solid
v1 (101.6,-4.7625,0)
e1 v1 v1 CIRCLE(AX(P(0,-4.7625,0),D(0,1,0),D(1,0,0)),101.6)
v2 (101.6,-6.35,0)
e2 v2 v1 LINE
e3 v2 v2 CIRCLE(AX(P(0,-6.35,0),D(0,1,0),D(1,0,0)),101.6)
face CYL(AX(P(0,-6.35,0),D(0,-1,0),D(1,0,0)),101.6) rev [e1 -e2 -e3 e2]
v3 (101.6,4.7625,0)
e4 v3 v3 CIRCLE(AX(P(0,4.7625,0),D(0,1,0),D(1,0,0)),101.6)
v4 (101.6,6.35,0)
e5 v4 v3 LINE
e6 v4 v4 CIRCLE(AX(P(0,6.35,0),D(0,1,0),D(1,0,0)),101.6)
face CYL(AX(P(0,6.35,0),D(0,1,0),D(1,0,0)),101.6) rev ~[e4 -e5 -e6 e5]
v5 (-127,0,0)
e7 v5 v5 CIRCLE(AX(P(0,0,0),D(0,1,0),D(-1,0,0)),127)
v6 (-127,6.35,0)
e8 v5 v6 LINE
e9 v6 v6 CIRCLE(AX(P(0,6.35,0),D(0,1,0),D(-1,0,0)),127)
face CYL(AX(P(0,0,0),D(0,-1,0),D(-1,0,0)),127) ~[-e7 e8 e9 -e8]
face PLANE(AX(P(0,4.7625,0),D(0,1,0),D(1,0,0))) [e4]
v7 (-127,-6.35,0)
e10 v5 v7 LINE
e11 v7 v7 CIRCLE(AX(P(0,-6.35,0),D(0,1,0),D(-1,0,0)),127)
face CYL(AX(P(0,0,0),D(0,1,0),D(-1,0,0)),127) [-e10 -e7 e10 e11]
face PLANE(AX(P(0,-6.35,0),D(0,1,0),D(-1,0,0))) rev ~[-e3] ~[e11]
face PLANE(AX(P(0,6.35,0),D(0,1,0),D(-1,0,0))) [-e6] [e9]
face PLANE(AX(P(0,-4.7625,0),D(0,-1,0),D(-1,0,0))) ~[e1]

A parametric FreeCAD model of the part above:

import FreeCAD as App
import Part
import Sketcher

V = App.Vector
Q = App.Units.Quantity

doc = App.newDocument("Part")
body = doc.addObject("PartDesign::Body", "Body")

# Sketch on XZ plane
sketch1 = body.newObject("Sketcher::SketchObject", "Sketch")
sketch1.AttachmentSupport = (doc.getObject("XZ_Plane"), [""])
sketch1.MapMode = "FlatFace"
sketch1.addGeometry(Part.Circle(V(0, 0, 0), V(0, 0, 1), 127), False)
sketch1.addConstraint([
    Sketcher.Constraint("Coincident", 0, 3, -1, 1),
    Sketcher.Constraint("Diameter", 0, Q("10 in")),
])
pad1 = body.newObject("PartDesign::Pad", "Pad")
pad1.Profile = sketch1
pad1.Length = Q("0.5 in")
pad1.Midplane = True

# Sketch on XZ plane
sketch2 = body.newObject("Sketcher::SketchObject", "Sketch001")
sketch2.AttachmentSupport = (doc.getObject("XZ_Plane"), [""])
sketch2.MapMode = "FlatFace"
sketch2.AttachmentOffset = App.Placement(V(0, 0, -0.25 * 25.4), App.Rotation())
sketch2.addGeometry(Part.Circle(V(0, 0, 0), V(0, 0, 1), 102), False)
sketch2.addConstraint([
    Sketcher.Constraint("Coincident", 0, 3, -1, 1),
    Sketcher.Constraint("Diameter", 0, Q("8 in")),
])
pocket1 = body.newObject("PartDesign::Pocket", "Pocket")
pocket1.Profile = sketch2
pocket1.Length = Q("0.0625 in")
pocket1.Reversed = True
doc.recompute()

mirrored = body.newObject("PartDesign::Mirrored", "Mirrored")
mirrored.Originals = [pocket1]
mirrored.MirrorPlane = (doc.getObject("XZ_Plane"), [""])
body.Tip = mirrored

doc.recompute()
